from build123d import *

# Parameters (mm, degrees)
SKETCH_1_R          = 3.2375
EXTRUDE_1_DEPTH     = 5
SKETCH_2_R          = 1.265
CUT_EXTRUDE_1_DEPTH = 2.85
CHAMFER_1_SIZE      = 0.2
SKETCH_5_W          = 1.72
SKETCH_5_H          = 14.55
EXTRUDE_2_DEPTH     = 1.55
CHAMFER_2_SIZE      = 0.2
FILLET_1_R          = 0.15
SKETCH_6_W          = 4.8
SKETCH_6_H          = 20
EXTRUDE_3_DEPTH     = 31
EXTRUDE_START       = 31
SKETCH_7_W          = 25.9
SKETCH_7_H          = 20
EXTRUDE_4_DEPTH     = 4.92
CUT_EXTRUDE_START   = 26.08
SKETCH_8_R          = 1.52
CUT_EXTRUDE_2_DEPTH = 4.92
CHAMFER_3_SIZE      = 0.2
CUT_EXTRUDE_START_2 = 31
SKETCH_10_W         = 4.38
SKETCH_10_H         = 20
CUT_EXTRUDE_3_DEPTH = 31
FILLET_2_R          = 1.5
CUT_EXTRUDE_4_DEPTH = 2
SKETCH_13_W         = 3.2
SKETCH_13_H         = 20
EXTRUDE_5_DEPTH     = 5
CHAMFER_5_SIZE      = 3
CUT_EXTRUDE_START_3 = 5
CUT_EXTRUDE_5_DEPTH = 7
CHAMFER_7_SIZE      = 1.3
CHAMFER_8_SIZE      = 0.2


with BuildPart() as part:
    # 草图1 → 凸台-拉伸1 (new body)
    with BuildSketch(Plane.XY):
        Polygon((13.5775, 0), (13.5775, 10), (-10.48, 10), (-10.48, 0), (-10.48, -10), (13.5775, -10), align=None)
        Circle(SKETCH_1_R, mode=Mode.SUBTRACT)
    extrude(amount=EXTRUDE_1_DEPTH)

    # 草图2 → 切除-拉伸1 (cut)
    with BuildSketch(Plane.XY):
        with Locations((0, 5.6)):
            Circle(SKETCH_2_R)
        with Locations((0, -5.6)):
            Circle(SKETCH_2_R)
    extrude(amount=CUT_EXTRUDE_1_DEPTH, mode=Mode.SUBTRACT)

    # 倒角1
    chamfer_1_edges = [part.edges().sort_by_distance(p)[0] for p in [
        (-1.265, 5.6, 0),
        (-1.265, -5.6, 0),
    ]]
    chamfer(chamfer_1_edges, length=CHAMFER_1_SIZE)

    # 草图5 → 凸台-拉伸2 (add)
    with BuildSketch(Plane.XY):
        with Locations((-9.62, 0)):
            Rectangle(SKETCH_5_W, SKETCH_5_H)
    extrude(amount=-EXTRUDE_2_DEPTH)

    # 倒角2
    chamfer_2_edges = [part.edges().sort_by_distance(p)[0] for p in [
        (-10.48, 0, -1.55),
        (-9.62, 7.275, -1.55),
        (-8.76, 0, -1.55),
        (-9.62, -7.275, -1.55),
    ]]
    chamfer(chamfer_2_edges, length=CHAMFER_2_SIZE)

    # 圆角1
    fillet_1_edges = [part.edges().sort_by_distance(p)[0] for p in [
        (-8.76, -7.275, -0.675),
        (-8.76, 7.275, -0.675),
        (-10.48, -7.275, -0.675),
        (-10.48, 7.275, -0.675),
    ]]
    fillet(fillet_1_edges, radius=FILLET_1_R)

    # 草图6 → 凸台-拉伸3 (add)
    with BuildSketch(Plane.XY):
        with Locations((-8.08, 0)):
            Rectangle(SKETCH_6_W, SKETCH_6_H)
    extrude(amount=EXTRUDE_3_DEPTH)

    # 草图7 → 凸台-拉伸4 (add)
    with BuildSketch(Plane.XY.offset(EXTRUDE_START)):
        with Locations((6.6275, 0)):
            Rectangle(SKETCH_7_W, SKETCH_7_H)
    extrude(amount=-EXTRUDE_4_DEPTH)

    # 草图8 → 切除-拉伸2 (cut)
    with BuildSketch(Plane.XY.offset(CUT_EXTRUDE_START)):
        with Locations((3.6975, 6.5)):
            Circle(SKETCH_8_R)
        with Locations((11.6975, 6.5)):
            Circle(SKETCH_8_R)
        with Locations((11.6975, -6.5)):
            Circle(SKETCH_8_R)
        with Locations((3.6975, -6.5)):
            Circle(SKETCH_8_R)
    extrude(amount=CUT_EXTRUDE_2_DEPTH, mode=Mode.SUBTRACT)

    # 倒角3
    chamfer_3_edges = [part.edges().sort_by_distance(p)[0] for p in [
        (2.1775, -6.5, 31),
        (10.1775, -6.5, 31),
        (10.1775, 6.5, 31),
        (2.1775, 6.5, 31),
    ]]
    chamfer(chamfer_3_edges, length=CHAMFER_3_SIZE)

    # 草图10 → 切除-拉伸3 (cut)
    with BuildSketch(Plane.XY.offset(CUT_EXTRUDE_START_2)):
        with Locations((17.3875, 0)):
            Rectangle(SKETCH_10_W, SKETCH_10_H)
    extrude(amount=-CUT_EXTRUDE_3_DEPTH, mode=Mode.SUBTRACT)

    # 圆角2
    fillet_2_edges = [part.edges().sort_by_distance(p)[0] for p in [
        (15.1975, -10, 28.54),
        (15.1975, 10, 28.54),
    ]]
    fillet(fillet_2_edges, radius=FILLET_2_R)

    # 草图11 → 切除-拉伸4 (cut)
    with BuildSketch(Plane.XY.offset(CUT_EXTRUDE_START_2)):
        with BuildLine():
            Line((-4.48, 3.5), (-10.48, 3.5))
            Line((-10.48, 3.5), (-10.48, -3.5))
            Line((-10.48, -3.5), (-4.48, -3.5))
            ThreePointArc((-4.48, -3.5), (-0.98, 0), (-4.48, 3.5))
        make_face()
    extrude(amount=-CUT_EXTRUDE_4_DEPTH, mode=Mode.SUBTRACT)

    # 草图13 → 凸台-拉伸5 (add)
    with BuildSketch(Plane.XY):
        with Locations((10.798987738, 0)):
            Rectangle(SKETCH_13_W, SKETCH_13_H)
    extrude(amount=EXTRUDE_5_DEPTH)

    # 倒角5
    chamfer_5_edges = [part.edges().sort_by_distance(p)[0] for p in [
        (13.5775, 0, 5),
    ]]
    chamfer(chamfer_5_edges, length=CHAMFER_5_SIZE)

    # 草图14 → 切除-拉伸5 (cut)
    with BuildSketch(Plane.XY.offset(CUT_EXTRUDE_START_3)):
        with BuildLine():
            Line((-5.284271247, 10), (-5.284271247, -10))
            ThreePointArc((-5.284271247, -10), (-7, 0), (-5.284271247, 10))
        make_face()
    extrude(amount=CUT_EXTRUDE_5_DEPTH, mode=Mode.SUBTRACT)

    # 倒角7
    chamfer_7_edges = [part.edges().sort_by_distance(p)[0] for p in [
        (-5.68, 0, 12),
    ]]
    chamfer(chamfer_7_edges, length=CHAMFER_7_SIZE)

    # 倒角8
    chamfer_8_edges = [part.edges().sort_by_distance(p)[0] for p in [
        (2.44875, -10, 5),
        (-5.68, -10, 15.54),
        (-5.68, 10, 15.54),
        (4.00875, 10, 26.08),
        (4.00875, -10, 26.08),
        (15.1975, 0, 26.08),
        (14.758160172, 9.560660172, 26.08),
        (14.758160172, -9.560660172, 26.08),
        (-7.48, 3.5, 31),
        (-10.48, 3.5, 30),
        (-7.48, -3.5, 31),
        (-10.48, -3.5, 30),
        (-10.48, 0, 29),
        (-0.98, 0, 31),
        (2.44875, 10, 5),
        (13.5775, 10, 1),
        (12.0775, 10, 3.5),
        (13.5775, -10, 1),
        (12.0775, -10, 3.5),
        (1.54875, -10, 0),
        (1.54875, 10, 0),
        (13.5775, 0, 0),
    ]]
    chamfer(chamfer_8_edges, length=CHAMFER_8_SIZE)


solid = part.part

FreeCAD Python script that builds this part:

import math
import FreeCAD as App
import Part
import Sketcher

V = App.Vector
Q = App.Units.Quantity


def edges_at(feature, points):
    """Names of the edges that pass closest to the given points."""
    edges = feature.Shape.Edges
    near = lambda p: min(range(len(edges)), key=lambda i: edges[i].distToShape(Part.Vertex(*p))[0])
    return sorted({f"Edge{near(p) + 1}" for p in points})

doc = App.newDocument("Part")
params = doc.addObject("Spreadsheet::Sheet", "Params")
for row, (alias, value) in enumerate([
    ("sketch1_height", "20 mm"),
    ("pad1_length", "5 mm"),
    ("sketch2_diameter", "2.53 mm"),
    ("pocket1_length", "2.85 mm"),
    ("chamfer_size", "0.2 mm"),
    ("sketch3_width", "1.72 mm"),
    ("sketch3_height", "14.55 mm"),
    ("pad2_length", "1.55 mm"),
    ("chamfer2_size", "0.2 mm"),
    ("fillet_radius", "0.15 mm"),
    ("sketch4_height", "20 mm"),
    ("sketch4_width", "4.8 mm"),
    ("pad3_length", "31 mm"),
    ("sketch5_height", "20 mm"),
    ("sketch5_width", "25.9 mm"),
    ("pad4_length", "4.92 mm"),
    ("sketch6_diameter", "3.04 mm"),
    ("pocket2_length", "4.92 mm"),
    ("chamfer3_size", "0.2 mm"),
    ("sketch7_height", "20 mm"),
    ("sketch7_width", "4.38 mm"),
    ("pocket3_length", "31 mm"),
    ("fillet2_radius", "1.5 mm"),
    ("sketch8_radius", "3.5 mm"),
    ("sketch8_width", "6 mm"),
    ("pocket4_length", "2 mm"),
    ("sketch9_height", "20 mm"),
    ("sketch9_width", "3.2 mm"),
    ("pad5_length", "5 mm"),
    ("chamfer4_size", "3 mm"),
    ("sketch10_radius", "30 mm"),
    ("sketch10_height", "20 mm"),
    ("pocket5_length", "7 mm"),
    ("chamfer5_size", "1.3 mm"),
    ("chamfer6_size", "0.2 mm"),
], start=1):
    params.set(f"A{row}", alias)
    params.set(f"B{row}", "=" + value)
    params.setAlias(f"B{row}", alias)

body = doc.addObject("PartDesign::Body", "Body")

sketch1 = body.newObject("Sketcher::SketchObject", "Sketch")
sketch1.AttachmentSupport = (doc.getObject("XY_Plane"), [""])
sketch1.MapMode = "FlatFace"
sketch1.addGeometry([
    Part.LineSegment(V(13.6, 10, 0), V(-10.5, 10, 0)),
    Part.LineSegment(V(-10.5, 10, 0), V(-10.5, -10, 0)),
    Part.LineSegment(V(-10.5, -10, 0), V(13.6, -10, 0)),
    Part.LineSegment(V(13.6, -10, 0), V(13.6, 10, 0)),
    Part.Circle(V(0, 0, 0), V(0, 0, 1), 3.2),
], False)
sketch1.addConstraint([
    Sketcher.Constraint("Coincident", 0, 2, 1, 1),
    Sketcher.Constraint("Coincident", 1, 2, 2, 1),
    Sketcher.Constraint("Coincident", 2, 2, 3, 1),
    Sketcher.Constraint("Coincident", 3, 2, 0, 1),
    Sketcher.Constraint("Horizontal", 0),
    Sketcher.Constraint("Vertical", 1),
    Sketcher.Constraint("Horizontal", 2),
    Sketcher.Constraint("Vertical", 3),
    Sketcher.Constraint("Coincident", 4, 3, -1, 1),
    Sketcher.Constraint("DistanceY", 1, 2, 1, 1, Q("20 mm")),
    Sketcher.Constraint("Diameter", 4, Q("6.475 mm")),
    Sketcher.Constraint("DistanceY", -1, 1, 0, 2, Q("10 mm")),
    Sketcher.Constraint("DistanceX", 0, 2, -1, 1, Q("10.48 mm")),
    Sketcher.Constraint("DistanceX", 0, 2, 0, 1, Q("24.0575 mm")),
])
sketch1.setExpression("Constraints[9]", "Params.sketch1_height")
pad1 = body.newObject("PartDesign::Pad", "Pad")
pad1.Profile = sketch1
pad1.setExpression("Length", "Params.pad1_length")

sketch2 = body.newObject("Sketcher::SketchObject", "Sketch001")
sketch2.AttachmentSupport = (doc.getObject("XY_Plane"), [""])
sketch2.MapMode = "FlatFace"
sketch2.addGeometry([
    Part.Circle(V(0, 5.6, 0), V(0, 0, 1), 1.3),
    Part.Circle(V(0, -5.6, 0), V(0, 0, 1), 1.3),
], False)
sketch2.addConstraint([
    Sketcher.Constraint("Equal", 0, 1),
    Sketcher.Constraint("Symmetric", 0, 3, 1, 3, -1, 1),
    Sketcher.Constraint("PointOnObject", 0, 3, -2),
    Sketcher.Constraint("Diameter", 0, Q("2.53 mm")),
    Sketcher.Constraint("DistanceY", -1, 1, 0, 3, Q("5.6 mm")),
])
sketch2.setExpression("Constraints[3]", "Params.sketch2_diameter")
pocket1 = body.newObject("PartDesign::Pocket", "Pocket")
pocket1.Profile = sketch2
pocket1.setExpression("Length", "Params.pocket1_length")
pocket1.Reversed = True
doc.recompute()

chamfer = body.newObject("PartDesign::Chamfer", "Chamfer")
chamfer.Base = (pocket1, edges_at(pocket1, [(-1.265, 5.6, 0), (-1.265, -5.6, 0)]))
chamfer.setExpression("Size", "Params.chamfer_size")

sketch3 = body.newObject("Sketcher::SketchObject", "Sketch002")
sketch3.AttachmentSupport = (doc.getObject("XY_Plane"), [""])
sketch3.MapMode = "FlatFace"
sketch3.addGeometry([
    Part.LineSegment(V(-10.5, 7.3, 0), V(-10.5, -7.3, 0)),
    Part.LineSegment(V(-10.5, -7.3, 0), V(-8.8, -7.3, 0)),
    Part.LineSegment(V(-8.8, -7.3, 0), V(-8.8, 7.3, 0)),
    Part.LineSegment(V(-8.8, 7.3, 0), V(-10.5, 7.3, 0)),
], False)
sketch3.addConstraint([
    Sketcher.Constraint("Coincident", 0, 2, 1, 1),
    Sketcher.Constraint("Coincident", 1, 2, 2, 1),
    Sketcher.Constraint("Coincident", 2, 2, 3, 1),
    Sketcher.Constraint("Coincident", 3, 2, 0, 1),
    Sketcher.Constraint("Vertical", 0),
    Sketcher.Constraint("Horizontal", 1),
    Sketcher.Constraint("Vertical", 2),
    Sketcher.Constraint("Horizontal", 3),
    Sketcher.Constraint("DistanceX", 1, 1, 1, 2, Q("1.72 mm")),
    Sketcher.Constraint("DistanceY", 0, 2, 0, 1, Q("14.55 mm")),
    Sketcher.Constraint("DistanceX", 0, 2, -1, 1, Q("10.48 mm")),
    Sketcher.Constraint("DistanceY", 0, 2, -1, 1, Q("7.275 mm")),
])
sketch3.setExpression("Constraints[8]", "Params.sketch3_width")
sketch3.setExpression("Constraints[9]", "Params.sketch3_height")
pad2 = body.newObject("PartDesign::Pad", "Pad001")
pad2.Profile = sketch3
pad2.setExpression("Length", "Params.pad2_length")
pad2.Reversed = True
doc.recompute()

chamfer2 = body.newObject("PartDesign::Chamfer", "Chamfer001")
chamfer2.Base = (pad2, edges_at(pad2, [
    (-10.48, 0, -1.55),
    (-9.62, 7.275, -1.55),
    (-8.76, 0, -1.55),
    (-9.62, -7.275, -1.55),
]))
chamfer2.setExpression("Size", "Params.chamfer2_size")
doc.recompute()

fillet = body.newObject("PartDesign::Fillet", "Fillet")
fillet.Base = (chamfer2, edges_at(chamfer2, [
    (-8.76, -7.275, -0.675),
    (-8.76, 7.275, -0.675),
    (-10.48, -7.275, -0.675),
    (-10.48, 7.275, -0.675),
]))
fillet.setExpression("Radius", "Params.fillet_radius")

sketch4 = body.newObject("Sketcher::SketchObject", "Sketch003")
sketch4.AttachmentSupport = (doc.getObject("XY_Plane"), [""])
sketch4.MapMode = "FlatFace"
sketch4.addGeometry([
    Part.LineSegment(V(-10.5, 10, 0), V(-10.5, -10, 0)),
    Part.LineSegment(V(-10.5, -10, 0), V(-5.7, -10, 0)),
    Part.LineSegment(V(-5.7, -10, 0), V(-5.7, 10, 0)),
    Part.LineSegment(V(-5.7, 10, 0), V(-10.5, 10, 0)),
], False)
sketch4.addConstraint([
    Sketcher.Constraint("Coincident", 0, 2, 1, 1),
    Sketcher.Constraint("Coincident", 1, 2, 2, 1),
    Sketcher.Constraint("Coincident", 2, 2, 3, 1),
    Sketcher.Constraint("Coincident", 3, 2, 0, 1),
    Sketcher.Constraint("Vertical", 0),
    Sketcher.Constraint("Horizontal", 1),
    Sketcher.Constraint("Vertical", 2),
    Sketcher.Constraint("Horizontal", 3),
    Sketcher.Constraint("DistanceY", 0, 2, 0, 1, Q("20 mm")),
    Sketcher.Constraint("DistanceX", 1, 1, 1, 2, Q("4.8 mm")),
    Sketcher.Constraint("DistanceY", 0, 2, -1, 1, Q("10 mm")),
    Sketcher.Constraint("DistanceX", 0, 2, -1, 1, Q("10.48 mm")),
])
sketch4.setExpression("Constraints[8]", "Params.sketch4_height")
sketch4.setExpression("Constraints[9]", "Params.sketch4_width")
pad3 = body.newObject("PartDesign::Pad", "Pad002")
pad3.Profile = sketch4
pad3.setExpression("Length", "Params.pad3_length")

sketch5 = body.newObject("Sketcher::SketchObject", "Sketch004")
sketch5.AttachmentSupport = (doc.getObject("XY_Plane"), [""])
sketch5.MapMode = "FlatFace"
sketch5.AttachmentOffset = App.Placement(V(0, 0, 31), App.Rotation())
sketch5.addGeometry([
    Part.LineSegment(V(-6, 10, 0), V(-6, -10, 0)),
    Part.LineSegment(V(-6, -10, 0), V(20, -10, 0)),
    Part.LineSegment(V(20, -10, 0), V(20, 10, 0)),
    Part.LineSegment(V(20, 10, 0), V(-6, 10, 0)),
], False)
sketch5.addConstraint([
    Sketcher.Constraint("Coincident", 0, 2, 1, 1),
    Sketcher.Constraint("Coincident", 1, 2, 2, 1),
    Sketcher.Constraint("Coincident", 2, 2, 3, 1),
    Sketcher.Constraint("Coincident", 3, 2, 0, 1),
    Sketcher.Constraint("Vertical", 0),
    Sketcher.Constraint("Horizontal", 1),
    Sketcher.Constraint("Vertical", 2),
    Sketcher.Constraint("Horizontal", 3),
    Sketcher.Constraint("DistanceY", 0, 2, 0, 1, Q("20 mm")),
    Sketcher.Constraint("DistanceX", 1, 1, 1, 2, Q("25.9 mm")),
    Sketcher.Constraint("DistanceY", 0, 2, -1, 1, Q("10 mm")),
    Sketcher.Constraint("DistanceX", 0, 2, -1, 1, Q("6.3225 mm")),
])
sketch5.setExpression("Constraints[8]", "Params.sketch5_height")
sketch5.setExpression("Constraints[9]", "Params.sketch5_width")
pad4 = body.newObject("PartDesign::Pad", "Pad003")
pad4.Profile = sketch5
pad4.setExpression("Length", "Params.pad4_length")
pad4.Reversed = True

sketch6 = body.newObject("Sketcher::SketchObject", "Sketch005")
sketch6.AttachmentSupport = (doc.getObject("XY_Plane"), [""])
sketch6.MapMode = "FlatFace"
sketch6.AttachmentOffset = App.Placement(V(0, 0, 26.08), App.Rotation())
sketch6.addGeometry([
    Part.Circle(V(3.7, 6.5, 0), V(0, 0, 1), 1.5),
    Part.Circle(V(11.7, 6.5, 0), V(0, 0, 1), 1.5),
    Part.Circle(V(11.7, -6.5, 0), V(0, 0, 1), 1.5),
    Part.Circle(V(3.7, -6.5, 0), V(0, 0, 1), 1.5),
], False)
sketch6.addConstraint([
    Sketcher.Constraint("Equal", 0, 1),
    Sketcher.Constraint("Equal", 1, 2),
    Sketcher.Constraint("Equal", 2, 3),
    Sketcher.Constraint("Symmetric", 1, 3, 2, 3, -1),
    Sketcher.Constraint("Symmetric", 0, 3, 3, 3, -1),
    Sketcher.Constraint("Horizontal", 0, 3, 1, 3),
    Sketcher.Constraint("Diameter", 0, Q("3.04 mm")),
    Sketcher.Constraint("DistanceX", 0, 3, 1, 3, Q("8 mm")),
    Sketcher.Constraint("DistanceY", 2, 3, 1, 3, Q("13 mm")),
    Sketcher.Constraint("DistanceX", -1, 1, 0, 3, Q("3.6975 mm")),
])
sketch6.setExpression("Constraints[6]", "Params.sketch6_diameter")
pocket2 = body.newObject("PartDesign::Pocket", "Pocket001")
pocket2.Profile = sketch6
pocket2.setExpression("Length", "Params.pocket2_length")
pocket2.Reversed = True
doc.recompute()

chamfer3 = body.newObject("PartDesign::Chamfer", "Chamfer002")
chamfer3.Base = (pocket2, edges_at(pocket2, [
    (2.178, -6.5, 31),
    (10.178, -6.5, 31),
    (10.178, 6.5, 31),
    (2.178, 6.5, 31),
]))
chamfer3.setExpression("Size", "Params.chamfer3_size")

sketch7 = body.newObject("Sketcher::SketchObject", "Sketch006")
sketch7.AttachmentSupport = (doc.getObject("XY_Plane"), [""])
sketch7.MapMode = "FlatFace"
sketch7.AttachmentOffset = App.Placement(V(0, 0, 31), App.Rotation())
sketch7.addGeometry([
    Part.LineSegment(V(15.2, 10, 0), V(15.2, -10, 0)),
    Part.LineSegment(V(15.2, -10, 0), V(19.6, -10, 0)),
    Part.LineSegment(V(19.6, -10, 0), V(19.6, 10, 0)),
    Part.LineSegment(V(19.6, 10, 0), V(15.2, 10, 0)),
], False)
sketch7.addConstraint([
    Sketcher.Constraint("Coincident", 0, 2, 1, 1),
    Sketcher.Constraint("Coincident", 1, 2, 2, 1),
    Sketcher.Constraint("Coincident", 2, 2, 3, 1),
    Sketcher.Constraint("Coincident", 3, 2, 0, 1),
    Sketcher.Constraint("Vertical", 0),
    Sketcher.Constraint("Horizontal", 1),
    Sketcher.Constraint("Vertical", 2),
    Sketcher.Constraint("Horizontal", 3),
    Sketcher.Constraint("DistanceY", 0, 2, 0, 1, Q("20 mm")),
    Sketcher.Constraint("DistanceY", 0, 2, -1, 1, Q("10 mm")),
    Sketcher.Constraint("DistanceX", 1, 1, 1, 2, Q("4.38 mm")),
    Sketcher.Constraint("DistanceX", -1, 1, 0, 2, Q("15.1975 mm")),
])
sketch7.setExpression("Constraints[8]", "Params.sketch7_height")
sketch7.setExpression("Constraints[10]", "Params.sketch7_width")
pocket3 = body.newObject("PartDesign::Pocket", "Pocket002")
pocket3.Profile = sketch7
pocket3.setExpression("Length", "Params.pocket3_length")
doc.recompute()

fillet2 = body.newObject("PartDesign::Fillet", "Fillet001")
fillet2.Base = (pocket3, edges_at(pocket3, [(15.197, -10, 28.54), (15.197, 10, 28.54)]))
fillet2.setExpression("Radius", "Params.fillet2_radius")

sketch8 = body.newObject("Sketcher::SketchObject", "Sketch007")
sketch8.AttachmentSupport = (doc.getObject("XY_Plane"), [""])
sketch8.MapMode = "FlatFace"
sketch8.AttachmentOffset = App.Placement(V(0, 0, 31), App.Rotation())
sketch8.addGeometry([
    Part.LineSegment(V(-4.5, 3.5, 0), V(-10.5, 3.5, 0)),
    Part.LineSegment(V(-10.5, 3.5, 0), V(-10.5, -3.5, 0)),
    Part.LineSegment(V(-10.5, -3.5, 0), V(-4.5, -3.5, 0)),
    Part.ArcOfCircle(Part.Circle(V(-4.5, 0, 0), V(0, 0, 1), 3.5), math.radians(-90), math.radians(90)),
], False)
sketch8.addConstraint([
    Sketcher.Constraint("Coincident", 0, 2, 1, 1),
    Sketcher.Constraint("Coincident", 1, 2, 2, 1),
    Sketcher.Constraint("Tangent", 2, 2, 3, 1),
    Sketcher.Constraint("Tangent", 3, 2, 0, 1),
    Sketcher.Constraint("Horizontal", 0),
    Sketcher.Constraint("Vertical", 1),
    Sketcher.Constraint("Horizontal", 2),
    Sketcher.Constraint("PointOnObject", 3, 3, -1),
    Sketcher.Constraint("Radius", 3, Q("3.5 mm")),
    Sketcher.Constraint("DistanceX", 0, 2, 0, 1, Q("6 mm")),
    Sketcher.Constraint("DistanceX", 3, 3, -1, 1, Q("4.48 mm")),
])
sketch8.setExpression("Constraints[8]", "Params.sketch8_radius")
sketch8.setExpression("Constraints[9]", "Params.sketch8_width")
pocket4 = body.newObject("PartDesign::Pocket", "Pocket003")
pocket4.Profile = sketch8
pocket4.setExpression("Length", "Params.pocket4_length")

sketch9 = body.newObject("Sketcher::SketchObject", "Sketch008")
sketch9.AttachmentSupport = (doc.getObject("XY_Plane"), [""])
sketch9.MapMode = "FlatFace"
sketch9.addGeometry([
    Part.LineSegment(V(9.2, 10, 0), V(9.2, -10, 0)),
    Part.LineSegment(V(9.2, -10, 0), V(12.4, -10, 0)),
    Part.LineSegment(V(12.4, -10, 0), V(12.4, 10, 0)),
    Part.LineSegment(V(12.4, 10, 0), V(9.2, 10, 0)),
], False)
sketch9.addConstraint([
    Sketcher.Constraint("Coincident", 0, 2, 1, 1),
    Sketcher.Constraint("Coincident", 1, 2, 2, 1),
    Sketcher.Constraint("Coincident", 2, 2, 3, 1),
    Sketcher.Constraint("Coincident", 3, 2, 0, 1),
    Sketcher.Constraint("Vertical", 0),
    Sketcher.Constraint("Horizontal", 1),
    Sketcher.Constraint("Vertical", 2),
    Sketcher.Constraint("Horizontal", 3),
    Sketcher.Constraint("DistanceY", 0, 2, 0, 1, Q("20 mm")),
    Sketcher.Constraint("DistanceX", 1, 1, 1, 2, Q("3.2 mm")),
    Sketcher.Constraint("DistanceY", 0, 2, -1, 1, Q("10 mm")),
    Sketcher.Constraint("DistanceX", -1, 1, 0, 2, Q("9.198988 mm")),
])
sketch9.setExpression("Constraints[8]", "Params.sketch9_height")
sketch9.setExpression("Constraints[9]", "Params.sketch9_width")
pad5 = body.newObject("PartDesign::Pad", "Pad004")
pad5.Profile = sketch9
pad5.setExpression("Length", "Params.pad5_length")
doc.recompute()

chamfer4 = body.newObject("PartDesign::Chamfer", "Chamfer003")
chamfer4.Base = (pad5, edges_at(pad5, [(13.578, 0, 5)]))
chamfer4.setExpression("Size", "Params.chamfer4_size")

sketch10 = body.newObject("Sketcher::SketchObject", "Sketch009")
sketch10.AttachmentSupport = (doc.getObject("XY_Plane"), [""])
sketch10.MapMode = "FlatFace"
sketch10.AttachmentOffset = App.Placement(V(0, 0, 5), App.Rotation())
sketch10.addGeometry([
    Part.LineSegment(V(-5, -10, 0), V(-5, 10, 0)),
    Part.ArcOfCircle(Part.Circle(V(23, 0, 0), V(0, 0, 1), 30), math.radians(161), math.radians(199)),
], False)
sketch10.addConstraint([
    Sketcher.Constraint("Coincident", 0, 1, 1, 2),
    Sketcher.Constraint("Coincident", 1, 1, 0, 2),
    Sketcher.Constraint("Vertical", 0),
    Sketcher.Constraint("PointOnObject", 1, 3, -1),
    Sketcher.Constraint("Radius", 1, Q("30 mm")),
    Sketcher.Constraint("DistanceY", 0, 1, 0, 2, Q("20 mm")),
    Sketcher.Constraint("DistanceX", -1, 1, 1, 3, Q("23 mm")),
])
sketch10.setExpression("Constraints[4]", "Params.sketch10_radius")
sketch10.setExpression("Constraints[5]", "Params.sketch10_height")
pocket5 = body.newObject("PartDesign::Pocket", "Pocket004")
pocket5.Profile = sketch10
pocket5.setExpression("Length", "Params.pocket5_length")
pocket5.Reversed = True
doc.recompute()

chamfer5 = body.newObject("PartDesign::Chamfer", "Chamfer004")
chamfer5.Base = (pocket5, edges_at(pocket5, [(-5.68, 0, 12)]))
chamfer5.setExpression("Size", "Params.chamfer5_size")
doc.recompute()

chamfer6 = body.newObject("PartDesign::Chamfer", "Chamfer005")
chamfer6.Base = (chamfer5, edges_at(chamfer5, [
    (2.449, -10, 5),
    (-5.68, -10, 15.54),
    (-5.68, 10, 15.54),
    (4.009, 10, 26.08),
    (4.009, -10, 26.08),
    (15.197, 0, 26.08),
    (14.758, 9.561, 26.08),
    (14.758, -9.561, 26.08),
    (-7.48, 3.5, 31),
    (-10.48, 3.5, 30),
    (-7.48, -3.5, 31),
    (-10.48, -3.5, 30),
    (-10.48, 0, 29),
    (-0.98, 0, 31),
    (2.449, 10, 5),
    (13.578, 10, 1),
    (12.078, 10, 3.5),
    (13.578, -10, 1),
    (12.078, -10, 3.5),
    (1.549, -10, 0),
    (1.549, 10, 0),
    (13.578, 0, 0),
]))
chamfer6.setExpression("Size", "Params.chamfer6_size")

doc.recompute()
